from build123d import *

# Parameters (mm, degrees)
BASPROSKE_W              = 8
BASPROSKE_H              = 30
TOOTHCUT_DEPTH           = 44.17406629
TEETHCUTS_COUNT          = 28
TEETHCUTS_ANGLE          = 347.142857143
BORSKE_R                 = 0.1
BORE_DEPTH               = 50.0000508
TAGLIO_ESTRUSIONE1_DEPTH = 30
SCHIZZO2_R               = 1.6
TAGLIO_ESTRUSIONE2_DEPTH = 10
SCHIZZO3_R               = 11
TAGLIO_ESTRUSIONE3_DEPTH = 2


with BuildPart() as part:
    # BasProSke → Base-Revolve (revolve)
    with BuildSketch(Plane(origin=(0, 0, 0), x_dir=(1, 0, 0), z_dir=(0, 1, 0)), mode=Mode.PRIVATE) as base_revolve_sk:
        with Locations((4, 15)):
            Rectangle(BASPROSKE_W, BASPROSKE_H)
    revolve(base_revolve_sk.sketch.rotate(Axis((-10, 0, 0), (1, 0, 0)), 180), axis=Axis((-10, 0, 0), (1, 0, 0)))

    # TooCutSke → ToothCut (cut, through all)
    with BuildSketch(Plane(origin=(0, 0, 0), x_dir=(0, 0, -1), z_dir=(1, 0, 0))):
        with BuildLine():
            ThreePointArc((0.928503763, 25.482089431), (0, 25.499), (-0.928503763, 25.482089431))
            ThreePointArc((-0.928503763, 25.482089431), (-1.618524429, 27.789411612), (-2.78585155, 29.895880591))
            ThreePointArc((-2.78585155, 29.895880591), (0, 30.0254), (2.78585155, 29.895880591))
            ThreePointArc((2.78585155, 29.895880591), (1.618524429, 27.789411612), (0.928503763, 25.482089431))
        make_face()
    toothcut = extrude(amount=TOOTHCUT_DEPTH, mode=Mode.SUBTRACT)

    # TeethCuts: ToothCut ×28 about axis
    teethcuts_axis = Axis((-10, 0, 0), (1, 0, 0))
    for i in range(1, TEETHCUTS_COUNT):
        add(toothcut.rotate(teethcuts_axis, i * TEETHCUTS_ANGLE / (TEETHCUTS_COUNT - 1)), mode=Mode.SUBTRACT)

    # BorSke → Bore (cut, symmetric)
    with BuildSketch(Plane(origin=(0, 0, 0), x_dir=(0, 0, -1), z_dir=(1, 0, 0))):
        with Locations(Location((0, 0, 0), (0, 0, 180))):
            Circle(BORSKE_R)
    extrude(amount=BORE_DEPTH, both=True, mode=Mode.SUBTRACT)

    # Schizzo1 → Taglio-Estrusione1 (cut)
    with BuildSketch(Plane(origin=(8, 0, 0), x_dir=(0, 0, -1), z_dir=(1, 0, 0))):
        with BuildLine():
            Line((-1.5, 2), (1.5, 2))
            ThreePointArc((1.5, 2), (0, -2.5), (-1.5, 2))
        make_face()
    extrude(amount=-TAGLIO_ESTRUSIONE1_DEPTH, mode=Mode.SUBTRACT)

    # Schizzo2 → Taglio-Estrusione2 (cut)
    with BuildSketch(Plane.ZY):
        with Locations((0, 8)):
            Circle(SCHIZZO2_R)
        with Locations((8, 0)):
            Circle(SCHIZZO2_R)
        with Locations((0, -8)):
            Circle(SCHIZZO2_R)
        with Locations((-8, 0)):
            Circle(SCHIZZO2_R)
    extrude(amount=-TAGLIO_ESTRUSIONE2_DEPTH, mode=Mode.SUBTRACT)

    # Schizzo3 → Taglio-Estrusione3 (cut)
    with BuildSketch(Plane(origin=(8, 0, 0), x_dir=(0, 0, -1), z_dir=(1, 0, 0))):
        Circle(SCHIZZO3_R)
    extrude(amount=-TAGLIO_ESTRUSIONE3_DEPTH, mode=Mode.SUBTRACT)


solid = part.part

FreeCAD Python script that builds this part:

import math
import FreeCAD as App
import Part
import Sketcher

V = App.Vector

doc = App.newDocument("Part")
body = doc.addObject("PartDesign::Body", "Body")

sketch1 = body.newObject("Sketcher::SketchObject", "Sketch")
sketch1.AttachmentSupport = (doc.getObject("XZ_Plane"), [""])
sketch1.MapMode = "FlatFace"
sketch1.addGeometry(Part.LineSegment(V(0, -30, 0), V(0, 0, 0)), False)
sketch1.addGeometry(Part.LineSegment(V(0, 0, 0), V(8, 0, 0)), False)
sketch1.addGeometry(Part.LineSegment(V(8, 0, 0), V(8, -30, 0)), False)
sketch1.addGeometry(Part.LineSegment(V(8, -30, 0), V(0, -30, 0)), False)
sketch1.addConstraint(Sketcher.Constraint("Coincident", 0, 2, 1, 1))
sketch1.addConstraint(Sketcher.Constraint("Coincident", 1, 2, 2, 1))
sketch1.addConstraint(Sketcher.Constraint("Coincident", 2, 2, 3, 1))
sketch1.addConstraint(Sketcher.Constraint("Coincident", 3, 2, 0, 1))
sketch1.addConstraint(Sketcher.Constraint("Vertical", 0))
sketch1.addConstraint(Sketcher.Constraint("Horizontal", 1))
sketch1.addConstraint(Sketcher.Constraint("Vertical", 2))
sketch1.addConstraint(Sketcher.Constraint("Horizontal", 3))
sketch1.addConstraint(Sketcher.Constraint("Coincident", 0, 2, -1, 1))
sketch1.addConstraint(Sketcher.Constraint("DistanceX", 1, 1, 1, 2, 8.0))
sketch1.addConstraint(Sketcher.Constraint("DistanceY", 0, 1, 0, 2, 30.0))
revolution = body.newObject("PartDesign::Revolution", "Revolution")
revolution.Profile = sketch1
revolution.ReferenceAxis = (sketch1, ["H_Axis"])
revolution.Angle = 360

sketch2 = body.newObject("Sketcher::SketchObject", "Sketch001")
sketch2.AttachmentSupport = (doc.getObject("YZ_Plane"), [""])
sketch2.MapMode = "FlatFace"
sketch2.addGeometry(Part.ArcOfCircle(Part.Circle(V(0, 0, 0), V(0, 0, 1), 25.499), math.radians(-2.086792), math.radians(2.086792)), False)
sketch2.addGeometry(Part.ArcOfCircle(Part.Circle(V(23.44534, -11.941753, 0), V(0, 0, 1), 11.2), math.radians(54.834433), math.radians(79.522311)), False)
sketch2.addGeometry(Part.ArcOfCircle(Part.Circle(V(0, 0, 0), V(0, 0, 1), 30.0254), math.radians(-5.323741), math.radians(5.323741)), False)
sketch2.addGeometry(Part.ArcOfCircle(Part.Circle(V(23.44534, 11.941753, 0), V(0, 0, 1), 11.2), math.radians(-79.522311), math.radians(-54.834433)), False)
sketch2.addConstraint(Sketcher.Constraint("Coincident", 0, 1, 1, 2))
sketch2.addConstraint(Sketcher.Constraint("Coincident", 1, 1, 2, 1))
sketch2.addConstraint(Sketcher.Constraint("Coincident", 2, 2, 3, 2))
sketch2.addConstraint(Sketcher.Constraint("Coincident", 3, 1, 0, 2))
sketch2.addConstraint(Sketcher.Constraint("Coincident", 0, 3, -1, 1))
sketch2.addConstraint(Sketcher.Constraint("Coincident", 2, 3, -1, 1))
sketch2.addConstraint(Sketcher.Constraint("Equal", 1, 3))
sketch2.addConstraint(Sketcher.Constraint("Symmetric", 1, 3, 3, 3, -1))
sketch2.addConstraint(Sketcher.Constraint("Radius", 1, 11.2))
sketch2.addConstraint(Sketcher.Constraint("Radius", 0, 25.499))
sketch2.addConstraint(Sketcher.Constraint("Radius", 2, 30.0254))
sketch2.addConstraint(Sketcher.Constraint("DistanceY", 1, 3, 1, 1, 9.155901))
sketch2.addConstraint(Sketcher.Constraint("DistanceX", -1, 1, 1, 3, 23.44534))
pocket1 = body.newObject("PartDesign::Pocket", "Pocket")
pocket1.Profile = sketch2
pocket1.Type = "ThroughAll"
pocket1.Reversed = True
doc.recompute()

polarpattern = body.newObject("PartDesign::PolarPattern", "PolarPattern")
polarpattern.Originals = [pocket1]
polarpattern.Axis = (doc.getObject("X_Axis"), [""])
polarpattern.Angle = 360
polarpattern.Occurrences = 28
body.Tip = polarpattern

sketch3 = body.newObject("Sketcher::SketchObject", "Sketch002")
sketch3.AttachmentSupport = (doc.getObject("YZ_Plane"), [""])
sketch3.MapMode = "FlatFace"
sketch3.addGeometry(Part.Circle(V(0, 0, 0), V(0, 0, 1), 0.1), False)
sketch3.addConstraint(Sketcher.Constraint("Coincident", 0, 3, -1, 1))
sketch3.addConstraint(Sketcher.Constraint("Diameter", 0, 0.2))
pocket2 = body.newObject("PartDesign::Pocket", "Pocket001")
pocket2.Profile = sketch3
pocket2.Length = 100.000102
pocket2.Midplane = True

sketch4 = body.newObject("Sketcher::SketchObject", "Sketch003")
sketch4.AttachmentSupport = (doc.getObject("YZ_Plane"), [""])
sketch4.MapMode = "FlatFace"
sketch4.AttachmentOffset = App.Placement(V(0, 0, 8), App.Rotation())
sketch4.addGeometry(Part.LineSegment(V(2, -1.5, 0), V(2, 1.5, 0)), False)
sketch4.addGeometry(Part.ArcOfCircle(Part.Circle(V(0, 0, 0), V(0, 0, 1), 2.5), math.radians(36.869898), math.radians(323.130102)), False)
sketch4.addConstraint(Sketcher.Constraint("Coincident", 0, 1, 1, 2))
sketch4.addConstraint(Sketcher.Constraint("Coincident", 1, 1, 0, 2))
sketch4.addConstraint(Sketcher.Constraint("Vertical", 0))
sketch4.addConstraint(Sketcher.Constraint("Coincident", 1, 3, -1, 1))
sketch4.addConstraint(Sketcher.Constraint("Radius", 1, 2.5))
sketch4.addConstraint(Sketcher.Constraint("DistanceY", 0, 1, 0, 2, 3.0))
pocket3 = body.newObject("PartDesign::Pocket", "Pocket002")
pocket3.Profile = sketch4
pocket3.Length = 30

sketch5 = body.newObject("Sketcher::SketchObject", "Sketch004")
sketch5.AttachmentSupport = (doc.getObject("YZ_Plane"), [""])
sketch5.MapMode = "FlatFace"
sketch5.addGeometry(Part.Circle(V(8, 0, 0), V(0, 0, 1), 1.6), False)
sketch5.addGeometry(Part.Circle(V(0, 8, 0), V(0, 0, 1), 1.6), False)
sketch5.addGeometry(Part.Circle(V(-8, 0, 0), V(0, 0, 1), 1.6), False)
sketch5.addGeometry(Part.Circle(V(0, -8, 0), V(0, 0, 1), 1.6), False)
sketch5.addConstraint(Sketcher.Constraint("Equal", 0, 1))
sketch5.addConstraint(Sketcher.Constraint("Equal", 1, 2))
sketch5.addConstraint(Sketcher.Constraint("Equal", 2, 3))
sketch5.addConstraint(Sketcher.Constraint("Symmetric", 0, 3, 2, 3, -1, 1))
sketch5.addConstraint(Sketcher.Constraint("Symmetric", 1, 3, 3, 3, -1, 1))
sketch5.addConstraint(Sketcher.Constraint("PointOnObject", 0, 3, -1))
sketch5.addConstraint(Sketcher.Constraint("PointOnObject", 1, 3, -2))
sketch5.addConstraint(Sketcher.Constraint("Diameter", 0, 3.2))
sketch5.addConstraint(Sketcher.Constraint("DistanceX", -1, 1, 0, 3, 8.0))
sketch5.addConstraint(Sketcher.Constraint("DistanceY", -1, 1, 1, 3, 8.0))
pocket4 = body.newObject("PartDesign::Pocket", "Pocket003")
pocket4.Profile = sketch5
pocket4.Length = 10
pocket4.Reversed = True

sketch6 = body.newObject("Sketcher::SketchObject", "Sketch005")
sketch6.AttachmentSupport = (doc.getObject("YZ_Plane"), [""])
sketch6.MapMode = "FlatFace"
sketch6.AttachmentOffset = App.Placement(V(0, 0, 8), App.Rotation())
sketch6.addGeometry(Part.Circle(V(0, 0, 0), V(0, 0, 1), 11), False)
sketch6.addConstraint(Sketcher.Constraint("Coincident", 0, 3, -1, 1))
sketch6.addConstraint(Sketcher.Constraint("Diameter", 0, 22.0))
pocket5 = body.newObject("PartDesign::Pocket", "Pocket004")
pocket5.Profile = sketch6
pocket5.Length = 2

doc.recompute()
